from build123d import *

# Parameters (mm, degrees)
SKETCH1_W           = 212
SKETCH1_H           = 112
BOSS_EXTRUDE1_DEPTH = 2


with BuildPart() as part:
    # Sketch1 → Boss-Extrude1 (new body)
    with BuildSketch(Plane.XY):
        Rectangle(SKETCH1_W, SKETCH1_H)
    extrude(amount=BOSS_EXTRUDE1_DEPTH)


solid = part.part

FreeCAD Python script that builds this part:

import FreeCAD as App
import Part
import Sketcher
from FreeCAD import Vector
Q = App.Units.Quantity


def add_polygon(sketch, points):
    """Adds a closed chain of lines whose ends are joined by coincident constraints."""
    first, n = sketch.GeometryCount, len(points)
    for a, b in zip(points, points[1:] + points[:1]):
        sketch.addGeometry(Part.LineSegment(App.Vector(*a, 0), App.Vector(*b, 0)), False)
    for i in range(n):
        sketch.addConstraint(Sketcher.Constraint("Coincident", first + i, 2, first + (i + 1) % n, 1))

doc = App.newDocument("Part")
params = doc.addObject("Spreadsheet::Sheet", "Params")
for row, (alias, value) in enumerate([
    ("sketch1_width", "212 mm"),
    ("sketch1_height", "112 mm"),
    ("pad1_length", "2 mm"),
], start=1):
    params.set(f"A{row}", alias)
    params.set(f"B{row}", "=" + value)
    params.setAlias(f"B{row}", alias)

body = doc.addObject("PartDesign::Body", "Body")

# Sketch on XY plane
sketch1 = body.newObject("Sketcher::SketchObject", "Sketch")
sketch1.AttachmentSupport = (doc.getObject("XY_Plane"), [""])
sketch1.MapMode = "FlatFace"
add_polygon(sketch1, [(-106, 56), (-106, -56), (106, -56), (106, 56)])  # lines 0-3
sketch1.addConstraint([
    Sketcher.Constraint("Vertical", 0),
    Sketcher.Constraint("Horizontal", 1),
    Sketcher.Constraint("Vertical", 2),
    Sketcher.Constraint("Horizontal", 3),
    Sketcher.Constraint("Symmetric", 0, 2, 2, 2, -1, 1),
    Sketcher.Constraint("DistanceX", 1, 1, 1, 2, Q("212 mm")),
    Sketcher.Constraint("DistanceY", 0, 2, 0, 1, Q("112 mm")),
])
sketch1.setExpression("Constraints[9]", "Params.sketch1_width")
sketch1.setExpression("Constraints[10]", "Params.sketch1_height")
pad1 = body.newObject("PartDesign::Pad", "Pad")
pad1.Profile = sketch1
pad1.setExpression("Length", "Params.pad1_length")

doc.recompute()
